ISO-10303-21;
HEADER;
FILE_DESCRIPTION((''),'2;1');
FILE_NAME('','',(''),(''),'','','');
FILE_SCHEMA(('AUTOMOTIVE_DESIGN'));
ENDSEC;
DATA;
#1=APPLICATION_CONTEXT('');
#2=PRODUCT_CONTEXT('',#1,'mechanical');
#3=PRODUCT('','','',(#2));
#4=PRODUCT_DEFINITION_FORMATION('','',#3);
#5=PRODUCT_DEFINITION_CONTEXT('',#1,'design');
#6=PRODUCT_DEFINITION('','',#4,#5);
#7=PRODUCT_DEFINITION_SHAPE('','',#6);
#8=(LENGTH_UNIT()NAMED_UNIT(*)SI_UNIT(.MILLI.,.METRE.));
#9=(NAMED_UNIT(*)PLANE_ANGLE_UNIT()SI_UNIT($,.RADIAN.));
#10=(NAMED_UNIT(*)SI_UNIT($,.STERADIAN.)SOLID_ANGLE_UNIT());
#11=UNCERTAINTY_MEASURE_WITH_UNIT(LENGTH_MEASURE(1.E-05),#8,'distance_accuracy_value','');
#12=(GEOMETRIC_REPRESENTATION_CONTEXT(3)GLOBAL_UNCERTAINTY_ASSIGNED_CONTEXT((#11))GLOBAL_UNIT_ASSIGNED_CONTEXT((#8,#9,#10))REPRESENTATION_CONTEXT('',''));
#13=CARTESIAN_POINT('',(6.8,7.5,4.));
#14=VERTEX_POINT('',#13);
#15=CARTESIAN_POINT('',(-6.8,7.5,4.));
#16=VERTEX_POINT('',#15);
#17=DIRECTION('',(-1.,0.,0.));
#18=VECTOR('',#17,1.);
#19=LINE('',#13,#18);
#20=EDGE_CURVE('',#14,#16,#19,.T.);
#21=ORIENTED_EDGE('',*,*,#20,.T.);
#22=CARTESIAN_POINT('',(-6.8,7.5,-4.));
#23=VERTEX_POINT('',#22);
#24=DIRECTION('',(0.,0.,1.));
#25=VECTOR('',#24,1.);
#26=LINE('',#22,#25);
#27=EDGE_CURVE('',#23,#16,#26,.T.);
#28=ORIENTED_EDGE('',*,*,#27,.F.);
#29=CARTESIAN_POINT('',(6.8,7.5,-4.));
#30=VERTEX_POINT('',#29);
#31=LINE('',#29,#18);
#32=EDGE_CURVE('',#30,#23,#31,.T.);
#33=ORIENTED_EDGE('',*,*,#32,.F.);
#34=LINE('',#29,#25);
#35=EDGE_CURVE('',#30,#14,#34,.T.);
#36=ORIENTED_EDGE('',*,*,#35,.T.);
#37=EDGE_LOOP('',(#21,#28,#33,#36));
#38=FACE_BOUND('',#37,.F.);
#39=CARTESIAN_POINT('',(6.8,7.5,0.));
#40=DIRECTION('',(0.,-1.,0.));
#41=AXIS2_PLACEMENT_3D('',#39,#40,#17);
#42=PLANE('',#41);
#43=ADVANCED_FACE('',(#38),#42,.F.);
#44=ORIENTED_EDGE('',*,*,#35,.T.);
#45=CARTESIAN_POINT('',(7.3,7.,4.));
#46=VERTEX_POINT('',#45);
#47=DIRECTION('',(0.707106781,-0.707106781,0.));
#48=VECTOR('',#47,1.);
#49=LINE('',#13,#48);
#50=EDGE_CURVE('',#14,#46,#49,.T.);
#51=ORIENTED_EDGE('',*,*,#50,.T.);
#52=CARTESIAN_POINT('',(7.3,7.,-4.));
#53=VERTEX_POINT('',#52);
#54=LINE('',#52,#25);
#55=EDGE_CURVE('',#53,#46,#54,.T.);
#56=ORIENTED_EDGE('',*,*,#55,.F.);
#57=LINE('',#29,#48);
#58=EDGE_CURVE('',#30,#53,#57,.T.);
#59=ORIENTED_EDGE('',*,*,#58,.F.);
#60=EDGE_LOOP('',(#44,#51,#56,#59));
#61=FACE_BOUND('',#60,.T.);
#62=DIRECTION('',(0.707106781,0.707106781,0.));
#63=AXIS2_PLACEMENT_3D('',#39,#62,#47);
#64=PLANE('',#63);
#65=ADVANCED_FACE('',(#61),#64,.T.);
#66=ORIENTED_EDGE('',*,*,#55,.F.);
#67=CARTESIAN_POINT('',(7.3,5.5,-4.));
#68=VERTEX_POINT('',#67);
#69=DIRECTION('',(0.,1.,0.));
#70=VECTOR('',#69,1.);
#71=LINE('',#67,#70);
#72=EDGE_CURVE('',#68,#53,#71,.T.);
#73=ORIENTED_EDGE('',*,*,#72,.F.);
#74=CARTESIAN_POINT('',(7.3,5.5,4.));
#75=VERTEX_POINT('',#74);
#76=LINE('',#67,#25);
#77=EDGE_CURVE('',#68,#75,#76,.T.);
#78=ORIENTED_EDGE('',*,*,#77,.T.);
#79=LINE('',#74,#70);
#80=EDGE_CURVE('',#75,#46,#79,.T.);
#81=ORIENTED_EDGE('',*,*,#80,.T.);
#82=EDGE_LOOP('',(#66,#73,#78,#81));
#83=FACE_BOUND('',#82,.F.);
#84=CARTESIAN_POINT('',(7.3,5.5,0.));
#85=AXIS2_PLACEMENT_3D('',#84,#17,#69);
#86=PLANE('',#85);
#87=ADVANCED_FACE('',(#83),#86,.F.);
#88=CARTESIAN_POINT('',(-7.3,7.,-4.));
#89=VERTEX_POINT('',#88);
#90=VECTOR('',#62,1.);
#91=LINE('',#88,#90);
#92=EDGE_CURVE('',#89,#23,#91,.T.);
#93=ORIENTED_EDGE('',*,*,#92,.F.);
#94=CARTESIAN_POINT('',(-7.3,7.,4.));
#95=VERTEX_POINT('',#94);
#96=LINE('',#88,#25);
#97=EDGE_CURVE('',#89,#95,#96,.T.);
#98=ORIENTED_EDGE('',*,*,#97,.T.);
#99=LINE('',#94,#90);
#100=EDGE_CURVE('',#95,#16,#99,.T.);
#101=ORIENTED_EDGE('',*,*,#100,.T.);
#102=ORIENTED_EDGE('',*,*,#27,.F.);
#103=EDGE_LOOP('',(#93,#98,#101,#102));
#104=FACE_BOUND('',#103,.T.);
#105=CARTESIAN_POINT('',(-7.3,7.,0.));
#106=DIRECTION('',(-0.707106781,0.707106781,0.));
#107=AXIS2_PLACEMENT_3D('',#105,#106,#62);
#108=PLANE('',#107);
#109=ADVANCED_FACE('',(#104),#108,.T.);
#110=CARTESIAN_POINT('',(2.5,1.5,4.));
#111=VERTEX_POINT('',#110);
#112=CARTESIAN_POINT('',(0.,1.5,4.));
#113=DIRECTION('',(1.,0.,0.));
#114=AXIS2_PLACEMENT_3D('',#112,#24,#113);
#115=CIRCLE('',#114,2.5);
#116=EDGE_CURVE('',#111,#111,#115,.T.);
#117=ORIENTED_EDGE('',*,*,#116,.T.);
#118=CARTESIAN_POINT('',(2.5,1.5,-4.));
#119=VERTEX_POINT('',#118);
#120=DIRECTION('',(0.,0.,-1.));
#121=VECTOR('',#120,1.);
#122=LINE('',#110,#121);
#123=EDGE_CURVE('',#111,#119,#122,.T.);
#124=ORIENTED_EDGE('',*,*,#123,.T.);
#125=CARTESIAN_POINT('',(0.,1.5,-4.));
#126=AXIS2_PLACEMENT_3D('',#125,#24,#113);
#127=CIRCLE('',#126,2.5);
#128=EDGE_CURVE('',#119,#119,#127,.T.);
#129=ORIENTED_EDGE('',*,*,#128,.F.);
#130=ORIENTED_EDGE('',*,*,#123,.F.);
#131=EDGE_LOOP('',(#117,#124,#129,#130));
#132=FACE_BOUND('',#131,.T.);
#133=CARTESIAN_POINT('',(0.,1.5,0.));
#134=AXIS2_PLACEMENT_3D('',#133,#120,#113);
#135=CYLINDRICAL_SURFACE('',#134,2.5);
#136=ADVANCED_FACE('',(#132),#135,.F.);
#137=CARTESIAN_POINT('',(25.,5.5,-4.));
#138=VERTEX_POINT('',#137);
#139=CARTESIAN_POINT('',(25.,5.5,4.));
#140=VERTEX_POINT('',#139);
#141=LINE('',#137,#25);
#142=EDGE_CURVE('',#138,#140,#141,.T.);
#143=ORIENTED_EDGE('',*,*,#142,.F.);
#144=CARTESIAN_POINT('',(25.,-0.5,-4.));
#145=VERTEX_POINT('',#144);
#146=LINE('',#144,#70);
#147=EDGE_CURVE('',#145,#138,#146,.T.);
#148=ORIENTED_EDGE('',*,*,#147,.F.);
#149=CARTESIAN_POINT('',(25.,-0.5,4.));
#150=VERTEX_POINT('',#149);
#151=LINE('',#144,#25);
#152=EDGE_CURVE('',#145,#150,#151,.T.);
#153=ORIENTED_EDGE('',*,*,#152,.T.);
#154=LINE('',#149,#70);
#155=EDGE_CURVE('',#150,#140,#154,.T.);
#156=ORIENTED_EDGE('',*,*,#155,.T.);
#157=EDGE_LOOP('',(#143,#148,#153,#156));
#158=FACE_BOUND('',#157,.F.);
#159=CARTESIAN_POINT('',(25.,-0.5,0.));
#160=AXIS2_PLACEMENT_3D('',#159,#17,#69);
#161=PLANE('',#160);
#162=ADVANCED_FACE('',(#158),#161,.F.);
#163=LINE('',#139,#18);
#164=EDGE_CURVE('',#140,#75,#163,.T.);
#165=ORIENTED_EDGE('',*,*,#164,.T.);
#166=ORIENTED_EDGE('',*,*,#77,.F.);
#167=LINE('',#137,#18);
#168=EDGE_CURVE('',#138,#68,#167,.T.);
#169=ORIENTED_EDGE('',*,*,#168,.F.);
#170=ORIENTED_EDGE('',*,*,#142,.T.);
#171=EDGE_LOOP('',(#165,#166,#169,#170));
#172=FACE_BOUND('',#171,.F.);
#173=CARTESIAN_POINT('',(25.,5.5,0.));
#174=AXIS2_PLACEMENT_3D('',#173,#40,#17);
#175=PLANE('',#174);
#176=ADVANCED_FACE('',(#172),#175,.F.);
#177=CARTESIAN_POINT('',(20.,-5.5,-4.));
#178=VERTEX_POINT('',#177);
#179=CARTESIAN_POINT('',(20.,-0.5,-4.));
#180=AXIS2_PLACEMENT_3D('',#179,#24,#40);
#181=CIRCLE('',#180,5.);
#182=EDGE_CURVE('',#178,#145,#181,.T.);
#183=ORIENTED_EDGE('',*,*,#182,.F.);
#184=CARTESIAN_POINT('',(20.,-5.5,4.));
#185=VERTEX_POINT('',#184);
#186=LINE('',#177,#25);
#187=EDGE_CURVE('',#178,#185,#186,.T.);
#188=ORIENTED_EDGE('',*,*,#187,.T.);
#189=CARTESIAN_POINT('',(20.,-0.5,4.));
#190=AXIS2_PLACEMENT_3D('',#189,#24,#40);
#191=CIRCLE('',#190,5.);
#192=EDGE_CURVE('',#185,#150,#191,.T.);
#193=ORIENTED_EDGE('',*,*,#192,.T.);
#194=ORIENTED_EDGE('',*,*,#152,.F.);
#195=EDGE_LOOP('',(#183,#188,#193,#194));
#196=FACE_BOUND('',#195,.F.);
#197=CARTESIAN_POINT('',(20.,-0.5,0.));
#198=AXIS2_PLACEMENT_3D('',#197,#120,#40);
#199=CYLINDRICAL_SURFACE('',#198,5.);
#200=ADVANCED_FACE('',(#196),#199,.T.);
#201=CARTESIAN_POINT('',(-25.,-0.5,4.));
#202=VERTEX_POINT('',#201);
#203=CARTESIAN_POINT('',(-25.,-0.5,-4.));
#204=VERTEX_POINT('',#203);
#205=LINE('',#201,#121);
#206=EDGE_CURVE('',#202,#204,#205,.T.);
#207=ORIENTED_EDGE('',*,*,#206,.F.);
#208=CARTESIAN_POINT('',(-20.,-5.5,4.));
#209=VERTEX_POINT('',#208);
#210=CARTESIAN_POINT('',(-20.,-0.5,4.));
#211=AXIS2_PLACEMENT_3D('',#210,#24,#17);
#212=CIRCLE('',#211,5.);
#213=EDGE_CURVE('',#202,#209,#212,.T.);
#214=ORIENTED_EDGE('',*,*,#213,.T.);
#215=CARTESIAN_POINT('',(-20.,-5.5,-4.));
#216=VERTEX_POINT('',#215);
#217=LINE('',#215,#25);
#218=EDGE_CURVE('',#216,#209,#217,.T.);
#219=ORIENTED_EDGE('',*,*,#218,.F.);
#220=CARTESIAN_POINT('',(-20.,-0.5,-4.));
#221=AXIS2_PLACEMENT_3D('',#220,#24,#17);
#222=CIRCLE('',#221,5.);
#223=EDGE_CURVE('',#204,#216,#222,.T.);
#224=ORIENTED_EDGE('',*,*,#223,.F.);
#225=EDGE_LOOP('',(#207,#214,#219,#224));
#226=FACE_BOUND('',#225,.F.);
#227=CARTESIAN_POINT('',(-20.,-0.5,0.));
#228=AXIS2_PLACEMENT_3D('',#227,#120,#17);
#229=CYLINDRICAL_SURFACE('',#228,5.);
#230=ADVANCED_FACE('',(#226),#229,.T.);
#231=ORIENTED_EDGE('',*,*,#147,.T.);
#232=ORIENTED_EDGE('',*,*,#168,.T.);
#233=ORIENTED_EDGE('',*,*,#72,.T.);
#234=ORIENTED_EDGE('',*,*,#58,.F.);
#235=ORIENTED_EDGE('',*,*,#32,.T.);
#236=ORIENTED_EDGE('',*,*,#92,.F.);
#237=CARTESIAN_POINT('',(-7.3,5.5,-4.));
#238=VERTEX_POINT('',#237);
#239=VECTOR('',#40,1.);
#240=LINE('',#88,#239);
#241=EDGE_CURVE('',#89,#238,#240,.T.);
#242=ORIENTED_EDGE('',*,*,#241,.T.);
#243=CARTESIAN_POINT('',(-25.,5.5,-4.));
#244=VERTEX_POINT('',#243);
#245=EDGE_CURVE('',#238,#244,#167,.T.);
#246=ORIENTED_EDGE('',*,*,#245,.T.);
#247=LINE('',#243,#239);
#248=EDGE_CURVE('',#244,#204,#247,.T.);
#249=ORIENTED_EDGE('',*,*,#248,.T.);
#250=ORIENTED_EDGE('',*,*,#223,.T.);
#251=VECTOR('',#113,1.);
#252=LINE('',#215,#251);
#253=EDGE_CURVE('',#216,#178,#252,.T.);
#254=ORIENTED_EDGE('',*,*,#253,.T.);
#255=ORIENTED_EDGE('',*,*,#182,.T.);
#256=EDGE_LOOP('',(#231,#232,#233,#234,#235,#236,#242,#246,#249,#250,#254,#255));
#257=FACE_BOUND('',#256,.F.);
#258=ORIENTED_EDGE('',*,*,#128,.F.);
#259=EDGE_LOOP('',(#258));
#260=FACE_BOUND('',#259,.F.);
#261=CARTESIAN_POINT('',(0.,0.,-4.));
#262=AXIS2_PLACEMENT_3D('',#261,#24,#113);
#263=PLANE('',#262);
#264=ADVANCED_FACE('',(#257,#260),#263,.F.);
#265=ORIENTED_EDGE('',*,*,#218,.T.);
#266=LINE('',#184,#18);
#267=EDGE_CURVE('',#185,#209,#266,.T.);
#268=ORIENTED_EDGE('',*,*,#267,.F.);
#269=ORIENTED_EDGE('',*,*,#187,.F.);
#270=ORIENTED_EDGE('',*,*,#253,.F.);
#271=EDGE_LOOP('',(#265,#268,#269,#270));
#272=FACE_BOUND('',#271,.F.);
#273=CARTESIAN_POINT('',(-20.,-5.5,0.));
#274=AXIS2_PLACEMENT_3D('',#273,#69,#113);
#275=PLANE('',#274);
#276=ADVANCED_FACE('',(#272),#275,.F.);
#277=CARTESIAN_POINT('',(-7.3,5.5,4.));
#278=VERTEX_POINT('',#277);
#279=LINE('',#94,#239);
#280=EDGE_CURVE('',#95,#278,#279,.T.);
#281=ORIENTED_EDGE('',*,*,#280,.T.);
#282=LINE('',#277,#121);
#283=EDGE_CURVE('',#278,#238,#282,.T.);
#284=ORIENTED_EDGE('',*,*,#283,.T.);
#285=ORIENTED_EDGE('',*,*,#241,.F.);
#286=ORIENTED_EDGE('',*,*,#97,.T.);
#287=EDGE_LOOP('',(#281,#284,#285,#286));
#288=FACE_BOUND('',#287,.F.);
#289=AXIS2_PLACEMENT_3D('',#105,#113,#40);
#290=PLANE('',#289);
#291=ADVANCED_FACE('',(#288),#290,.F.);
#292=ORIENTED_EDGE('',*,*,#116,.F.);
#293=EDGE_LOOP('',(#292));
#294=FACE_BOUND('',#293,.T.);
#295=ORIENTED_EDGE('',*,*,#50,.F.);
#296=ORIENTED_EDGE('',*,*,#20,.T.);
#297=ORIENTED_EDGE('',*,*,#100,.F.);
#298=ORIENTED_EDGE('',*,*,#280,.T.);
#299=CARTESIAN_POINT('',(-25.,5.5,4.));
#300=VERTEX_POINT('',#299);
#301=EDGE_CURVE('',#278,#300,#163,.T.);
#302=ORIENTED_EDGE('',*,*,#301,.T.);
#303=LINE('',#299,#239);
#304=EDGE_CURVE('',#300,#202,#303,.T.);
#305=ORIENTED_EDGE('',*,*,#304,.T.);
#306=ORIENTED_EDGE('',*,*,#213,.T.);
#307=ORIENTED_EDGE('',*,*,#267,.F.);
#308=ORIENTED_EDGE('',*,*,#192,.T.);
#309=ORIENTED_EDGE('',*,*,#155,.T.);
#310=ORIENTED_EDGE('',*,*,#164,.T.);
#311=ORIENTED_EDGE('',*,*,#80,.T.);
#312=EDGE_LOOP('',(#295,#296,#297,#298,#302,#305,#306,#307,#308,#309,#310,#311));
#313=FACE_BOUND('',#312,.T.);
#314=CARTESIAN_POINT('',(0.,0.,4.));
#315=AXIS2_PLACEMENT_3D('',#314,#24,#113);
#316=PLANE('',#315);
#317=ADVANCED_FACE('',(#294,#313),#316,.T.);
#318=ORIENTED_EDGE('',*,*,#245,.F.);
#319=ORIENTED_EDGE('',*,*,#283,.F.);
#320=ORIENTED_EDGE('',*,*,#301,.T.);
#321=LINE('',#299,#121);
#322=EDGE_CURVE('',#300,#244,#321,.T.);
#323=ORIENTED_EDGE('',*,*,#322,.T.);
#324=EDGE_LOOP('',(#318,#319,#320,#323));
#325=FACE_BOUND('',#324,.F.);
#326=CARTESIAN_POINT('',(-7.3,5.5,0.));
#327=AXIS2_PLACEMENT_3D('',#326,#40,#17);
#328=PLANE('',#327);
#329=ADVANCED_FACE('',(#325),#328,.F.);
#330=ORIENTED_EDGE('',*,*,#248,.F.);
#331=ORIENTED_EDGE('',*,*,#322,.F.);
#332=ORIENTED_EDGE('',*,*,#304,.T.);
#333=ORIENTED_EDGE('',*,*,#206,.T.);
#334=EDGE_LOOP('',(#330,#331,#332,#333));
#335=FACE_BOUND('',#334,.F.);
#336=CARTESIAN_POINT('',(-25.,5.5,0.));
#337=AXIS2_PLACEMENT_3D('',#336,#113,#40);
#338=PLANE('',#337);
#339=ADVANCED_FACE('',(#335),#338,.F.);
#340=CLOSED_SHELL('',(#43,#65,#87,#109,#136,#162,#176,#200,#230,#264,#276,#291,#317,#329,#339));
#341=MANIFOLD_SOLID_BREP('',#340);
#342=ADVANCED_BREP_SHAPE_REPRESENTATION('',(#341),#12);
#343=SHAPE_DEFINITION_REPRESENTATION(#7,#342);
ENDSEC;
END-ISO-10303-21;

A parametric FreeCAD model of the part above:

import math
import FreeCAD as App
import Part
import Sketcher

V = App.Vector

doc = App.newDocument("Part")
params = doc.addObject("Spreadsheet::Sheet", "Params")
for row, (alias, value) in enumerate([
    ("sketch1_diameter", "5 mm"),
    ("sketch1_radius", "5 mm"),
    ("sketch1_width", "40 mm"),
    ("pad1_length", "8 mm"),
], start=1):
    params.set(f"A{row}", alias)
    params.set(f"B{row}", "=" + value)
    params.setAlias(f"B{row}", alias)

body = doc.addObject("PartDesign::Body", "Body")

sketch1 = body.newObject("Sketcher::SketchObject", "Sketch")
sketch1.AttachmentSupport = (doc.getObject("XY_Plane"), [""])
sketch1.MapMode = "FlatFace"
sketch1.addGeometry(Part.ArcOfCircle(Part.Circle(V(-20, -0.5, 0), V(0, 0, 1), 5), math.radians(180), math.radians(270)), False)
sketch1.addGeometry(Part.LineSegment(V(-20, -5.5, 0), V(20, -5.5, 0)), False)
sketch1.addGeometry(Part.ArcOfCircle(Part.Circle(V(20, -0.5, 0), V(0, 0, 1), 5), math.radians(-90), math.radians(0)), False)
sketch1.addGeometry(Part.LineSegment(V(25, -0.5, 0), V(25, 5.5, 0)), False)
sketch1.addGeometry(Part.LineSegment(V(25, 5.5, 0), V(7.3, 5.5, 0)), False)
sketch1.addGeometry(Part.LineSegment(V(7.3, 5.5, 0), V(7.3, 7, 0)), False)
sketch1.addGeometry(Part.LineSegment(V(7.3, 7, 0), V(6.8, 7.5, 0)), False)
sketch1.addGeometry(Part.LineSegment(V(6.8, 7.5, 0), V(-6.8, 7.5, 0)), False)
sketch1.addGeometry(Part.LineSegment(V(-6.8, 7.5, 0), V(-7.3, 7, 0)), False)
sketch1.addGeometry(Part.LineSegment(V(-7.3, 7, 0), V(-7.3, 5.5, 0)), False)
sketch1.addGeometry(Part.LineSegment(V(-7.3, 5.5, 0), V(-25, 5.5, 0)), False)
sketch1.addGeometry(Part.LineSegment(V(-25, 5.5, 0), V(-25, -0.5, 0)), False)
sketch1.addGeometry(Part.Circle(V(0, 1.5, 0), V(0, 0, 1), 2.5), False)
sketch1.addConstraint(Sketcher.Constraint("Tangent", 0, 2, 1, 1))
sketch1.addConstraint(Sketcher.Constraint("Tangent", 1, 2, 2, 1))
sketch1.addConstraint(Sketcher.Constraint("Tangent", 2, 2, 3, 1))
sketch1.addConstraint(Sketcher.Constraint("Coincident", 3, 2, 4, 1))
sketch1.addConstraint(Sketcher.Constraint("Coincident", 4, 2, 5, 1))
sketch1.addConstraint(Sketcher.Constraint("Coincident", 5, 2, 6, 1))
sketch1.addConstraint(Sketcher.Constraint("Coincident", 6, 2, 7, 1))
sketch1.addConstraint(Sketcher.Constraint("Coincident", 7, 2, 8, 1))
sketch1.addConstraint(Sketcher.Constraint("Coincident", 8, 2, 9, 1))
sketch1.addConstraint(Sketcher.Constraint("Coincident", 9, 2, 10, 1))
sketch1.addConstraint(Sketcher.Constraint("Coincident", 10, 2, 11, 1))
sketch1.addConstraint(Sketcher.Constraint("Tangent", 11, 2, 0, 1))
sketch1.addConstraint(Sketcher.Constraint("Horizontal", 1))
sketch1.addConstraint(Sketcher.Constraint("Vertical", 3))
sketch1.addConstraint(Sketcher.Constraint("Horizontal", 4))
sketch1.addConstraint(Sketcher.Constraint("Vertical", 5))
sketch1.addConstraint(Sketcher.Constraint("Horizontal", 7))
sketch1.addConstraint(Sketcher.Constraint("Vertical", 9))
sketch1.addConstraint(Sketcher.Constraint("Horizontal", 10))
sketch1.addConstraint(Sketcher.Constraint("Vertical", 11))
sketch1.addConstraint(Sketcher.Constraint("Equal", 0, 2))
sketch1.addConstraint(Sketcher.Constraint("Symmetric", 5, 2, 8, 2, -2))
sketch1.addConstraint(Sketcher.Constraint("Symmetric", 3, 2, 10, 2, -2))
sketch1.addConstraint(Sketcher.Constraint("PointOnObject", 12, 3, -2))
sketch1.addConstraint(Sketcher.Constraint("Perpendicular", 6, 8))
sketch1.addConstraint(Sketcher.Constraint("Equal", 6, 8))
sketch1.addConstraint(Sketcher.Constraint("Diameter", 12, 5.0))
sketch1.addConstraint(Sketcher.Constraint("Radius", 0, 5.0))
sketch1.addConstraint(Sketcher.Constraint("DistanceY", 0, 3, 12, 3, 2.0))
sketch1.addConstraint(Sketcher.Constraint("DistanceY", 1, 2, 3, 2, 11.0))
sketch1.addConstraint(Sketcher.Constraint("DistanceY", 4, 2, 6, 2, 2.0))
sketch1.addConstraint(Sketcher.Constraint("DistanceY", 0, 3, -1, 1, 0.5))
sketch1.addConstraint(Sketcher.Constraint("DistanceX", 6, 2, 5, 2, 0.5))
sketch1.addConstraint(Sketcher.Constraint("DistanceX", 8, 2, 5, 2, 14.6))
sketch1.addConstraint(Sketcher.Constraint("DistanceX", 1, 1, 1, 2, 40.0))
sketch1.setExpression("Constraints[26]", "Params.sketch1_diameter")
sketch1.setExpression("Constraints[27]", "Params.sketch1_radius")
sketch1.setExpression("Constraints[34]", "Params.sketch1_width")
pad1 = body.newObject("PartDesign::Pad", "Pad")
pad1.Profile = sketch1
pad1.setExpression("Length", "Params.pad1_length")
pad1.Midplane = True

doc.recompute()
